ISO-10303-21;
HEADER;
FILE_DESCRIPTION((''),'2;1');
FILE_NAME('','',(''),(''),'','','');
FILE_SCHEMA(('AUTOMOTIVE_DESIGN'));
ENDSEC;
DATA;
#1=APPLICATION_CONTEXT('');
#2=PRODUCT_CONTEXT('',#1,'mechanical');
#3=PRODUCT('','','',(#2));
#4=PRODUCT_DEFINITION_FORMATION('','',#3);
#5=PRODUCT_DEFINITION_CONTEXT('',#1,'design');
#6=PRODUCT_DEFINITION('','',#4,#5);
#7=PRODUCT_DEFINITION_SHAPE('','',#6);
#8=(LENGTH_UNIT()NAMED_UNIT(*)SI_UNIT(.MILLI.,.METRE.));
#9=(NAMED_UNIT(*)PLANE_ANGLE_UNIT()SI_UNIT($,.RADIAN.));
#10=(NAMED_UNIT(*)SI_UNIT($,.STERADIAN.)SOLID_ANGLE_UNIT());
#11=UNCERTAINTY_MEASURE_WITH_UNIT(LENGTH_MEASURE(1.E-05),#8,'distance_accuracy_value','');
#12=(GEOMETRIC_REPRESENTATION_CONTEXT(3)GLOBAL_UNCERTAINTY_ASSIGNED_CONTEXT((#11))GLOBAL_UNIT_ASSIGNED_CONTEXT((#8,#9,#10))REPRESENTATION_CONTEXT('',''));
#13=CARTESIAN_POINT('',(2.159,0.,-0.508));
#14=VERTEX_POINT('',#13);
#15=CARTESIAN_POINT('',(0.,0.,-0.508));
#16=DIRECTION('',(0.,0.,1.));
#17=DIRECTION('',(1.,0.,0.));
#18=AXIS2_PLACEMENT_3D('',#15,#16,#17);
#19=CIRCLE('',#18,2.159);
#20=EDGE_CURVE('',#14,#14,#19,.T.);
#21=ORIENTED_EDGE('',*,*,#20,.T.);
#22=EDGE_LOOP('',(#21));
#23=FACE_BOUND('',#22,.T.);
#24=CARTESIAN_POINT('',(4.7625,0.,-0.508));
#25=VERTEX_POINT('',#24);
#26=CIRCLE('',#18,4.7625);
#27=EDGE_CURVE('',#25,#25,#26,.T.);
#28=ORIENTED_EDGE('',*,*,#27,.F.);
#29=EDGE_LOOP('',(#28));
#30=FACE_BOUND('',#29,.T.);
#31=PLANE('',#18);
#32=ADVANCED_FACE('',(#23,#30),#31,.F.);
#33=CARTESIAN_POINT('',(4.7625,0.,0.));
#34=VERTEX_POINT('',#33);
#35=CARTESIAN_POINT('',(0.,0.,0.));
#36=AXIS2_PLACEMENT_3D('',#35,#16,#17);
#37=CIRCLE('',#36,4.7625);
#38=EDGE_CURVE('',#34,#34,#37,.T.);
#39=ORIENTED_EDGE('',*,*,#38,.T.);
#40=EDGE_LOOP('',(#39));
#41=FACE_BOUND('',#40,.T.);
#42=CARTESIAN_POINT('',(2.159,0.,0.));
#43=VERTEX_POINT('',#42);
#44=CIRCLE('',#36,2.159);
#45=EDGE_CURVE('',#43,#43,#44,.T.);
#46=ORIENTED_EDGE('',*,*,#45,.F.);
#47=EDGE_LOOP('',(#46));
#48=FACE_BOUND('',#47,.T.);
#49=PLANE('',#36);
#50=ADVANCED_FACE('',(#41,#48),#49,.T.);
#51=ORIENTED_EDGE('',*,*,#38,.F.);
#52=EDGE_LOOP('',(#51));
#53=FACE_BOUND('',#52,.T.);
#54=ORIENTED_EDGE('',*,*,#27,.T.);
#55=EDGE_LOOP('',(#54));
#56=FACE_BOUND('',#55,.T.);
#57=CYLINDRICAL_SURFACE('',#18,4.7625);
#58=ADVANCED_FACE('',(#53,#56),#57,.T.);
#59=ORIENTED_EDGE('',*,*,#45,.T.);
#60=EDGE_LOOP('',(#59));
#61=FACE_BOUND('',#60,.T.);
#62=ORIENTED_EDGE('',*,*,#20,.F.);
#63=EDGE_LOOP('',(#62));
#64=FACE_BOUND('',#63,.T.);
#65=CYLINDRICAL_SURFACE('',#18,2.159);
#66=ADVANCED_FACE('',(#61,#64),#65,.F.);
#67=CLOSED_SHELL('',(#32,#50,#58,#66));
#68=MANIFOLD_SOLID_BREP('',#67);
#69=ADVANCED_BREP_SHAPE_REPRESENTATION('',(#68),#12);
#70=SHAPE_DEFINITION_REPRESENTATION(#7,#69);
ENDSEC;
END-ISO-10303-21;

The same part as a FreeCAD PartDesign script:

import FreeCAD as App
import Part
import Sketcher
Q = App.Units.Quantity

doc = App.newDocument("Part")
params = doc.addObject("Spreadsheet::Sheet", "Params")
for row, (alias, value) in enumerate([
    ("sketch1_diameter", "0.17 in"),
    ("sketch1_diameter2", "0.375 in"),
    ("pad1_length", "0.02 in"),
], start=1):
    params.set(f"A{row}", alias)
    params.set(f"B{row}", "=" + value)
    params.setAlias(f"B{row}", alias)

body = doc.addObject("PartDesign::Body", "Body")

sketch1 = body.newObject("Sketcher::SketchObject", "Sketch")
sketch1.AttachmentSupport = (doc.getObject("XY_Plane"), [""])
sketch1.MapMode = "FlatFace"
sketch1.addGeometry([
    Part.Circle(App.Vector(0, 0, 0), App.Vector(0, 0, 1), 4.7625),
    Part.Circle(App.Vector(0, 0, 0), App.Vector(0, 0, 1), 2.159),
], False)
sketch1.addConstraint([
    Sketcher.Constraint("Coincident", 0, 3, -1, 1),
    Sketcher.Constraint("Coincident", 1, 3, -1, 1),
    Sketcher.Constraint("Diameter", 1, Q("0.17 in")),
    Sketcher.Constraint("Diameter", 0, Q("0.375 in")),
])
sketch1.setExpression("Constraints[2]", "Params.sketch1_diameter")
sketch1.setExpression("Constraints[3]", "Params.sketch1_diameter2")
pad1 = body.newObject("PartDesign::Pad", "Pad")
pad1.Profile = sketch1
pad1.setExpression("Length", "Params.pad1_length")
pad1.Reversed = True

doc.recompute()
